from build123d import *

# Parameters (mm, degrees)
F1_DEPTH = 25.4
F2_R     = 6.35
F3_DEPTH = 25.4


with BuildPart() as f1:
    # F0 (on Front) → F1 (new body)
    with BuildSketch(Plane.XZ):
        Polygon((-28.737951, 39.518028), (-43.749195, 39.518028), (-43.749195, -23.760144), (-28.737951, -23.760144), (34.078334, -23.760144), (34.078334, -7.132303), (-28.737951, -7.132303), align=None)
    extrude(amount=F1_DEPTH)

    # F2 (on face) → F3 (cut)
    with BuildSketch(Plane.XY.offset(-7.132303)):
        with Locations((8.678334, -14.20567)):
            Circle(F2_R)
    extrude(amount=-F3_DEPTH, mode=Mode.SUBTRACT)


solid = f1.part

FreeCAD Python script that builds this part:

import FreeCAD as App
import Part
import Sketcher

V = App.Vector
Q = App.Units.Quantity

doc = App.newDocument("Part")
params = doc.addObject("Spreadsheet::Sheet", "Params")
for row, (alias, value) in enumerate([
    ("pad1_length", "1 in"),
    ("sketch2_diameter", "0.5 in"),
    ("pocket1_length", "1 in"),
], start=1):
    params.set(f"A{row}", alias)
    params.set(f"B{row}", "=" + value)
    params.setAlias(f"B{row}", alias)

body = doc.addObject("PartDesign::Body", "Body")

# Sketch on XZ plane
sketch1 = body.newObject("Sketcher::SketchObject", "Sketch")
sketch1.AttachmentSupport = (doc.getObject("XZ_Plane"), [""])
sketch1.MapMode = "FlatFace"
sketch1.addGeometry(Part.LineSegment(V(-29, 40, 0), V(-44, 40, 0)), False)
sketch1.addGeometry(Part.LineSegment(V(-44, 40, 0), V(-44, -24, 0)), False)
sketch1.addGeometry(Part.LineSegment(V(-44, -24, 0), V(34, -24, 0)), False)
sketch1.addGeometry(Part.LineSegment(V(34, -24, 0), V(34, -7, 0)), False)
sketch1.addGeometry(Part.LineSegment(V(34, -7, 0), V(-29, -7, 0)), False)
sketch1.addGeometry(Part.LineSegment(V(-29, -7, 0), V(-29, 40, 0)), False)
sketch1.addConstraint(Sketcher.Constraint("Coincident", 0, 2, 1, 1))
sketch1.addConstraint(Sketcher.Constraint("Coincident", 1, 2, 2, 1))
sketch1.addConstraint(Sketcher.Constraint("Coincident", 2, 2, 3, 1))
sketch1.addConstraint(Sketcher.Constraint("Coincident", 3, 2, 4, 1))
sketch1.addConstraint(Sketcher.Constraint("Coincident", 4, 2, 5, 1))
sketch1.addConstraint(Sketcher.Constraint("Coincident", 5, 2, 0, 1))
sketch1.addConstraint(Sketcher.Constraint("Horizontal", 0))
sketch1.addConstraint(Sketcher.Constraint("Vertical", 1))
sketch1.addConstraint(Sketcher.Constraint("Horizontal", 2))
sketch1.addConstraint(Sketcher.Constraint("Vertical", 3))
sketch1.addConstraint(Sketcher.Constraint("Horizontal", 4))
sketch1.addConstraint(Sketcher.Constraint("Vertical", 5))
sketch1.addConstraint(Sketcher.Constraint("DistanceX", 2, 1, 2, 2, Q("77.827529 mm")))
sketch1.addConstraint(Sketcher.Constraint("DistanceY", 1, 2, 1, 1, Q("63.278172 mm")))
sketch1.addConstraint(Sketcher.Constraint("DistanceY", 3, 1, 3, 2, Q("16.627841 mm")))
sketch1.addConstraint(Sketcher.Constraint("DistanceX", 0, 2, 0, 1, Q("15.011244 mm")))
sketch1.addConstraint(Sketcher.Constraint("DistanceX", 4, 2, -1, 1, Q("28.737951 mm")))
sketch1.addConstraint(Sketcher.Constraint("DistanceY", -1, 1, 0, 2, Q("39.518028 mm")))
pad1 = body.newObject("PartDesign::Pad", "Pad")
pad1.Profile = sketch1
pad1.setExpression("Length", "Params.pad1_length")

# Sketch on XY plane
sketch2 = body.newObject("Sketcher::SketchObject", "Sketch001")
sketch2.AttachmentSupport = (doc.getObject("XY_Plane"), [""])
sketch2.MapMode = "FlatFace"
sketch2.AttachmentOffset = App.Placement(V(0, 0, -7.132303), App.Rotation())
sketch2.addGeometry(Part.Circle(V(9, -14, 0), V(0, 0, 1), 6), False)
sketch2.addConstraint(Sketcher.Constraint("Diameter", 0, Q("0.5 in")))
sketch2.addConstraint(Sketcher.Constraint("DistanceY", 0, 3, -1, 1, Q("14.20567 mm")))
sketch2.addConstraint(Sketcher.Constraint("DistanceX", -1, 1, 0, 3, Q("8.678334 mm")))
sketch2.setExpression("Constraints[0]", "Params.sketch2_diameter")
pocket1 = body.newObject("PartDesign::Pocket", "Pocket")
pocket1.Profile = sketch2
pocket1.setExpression("Length", "Params.pocket1_length")

doc.recompute()
